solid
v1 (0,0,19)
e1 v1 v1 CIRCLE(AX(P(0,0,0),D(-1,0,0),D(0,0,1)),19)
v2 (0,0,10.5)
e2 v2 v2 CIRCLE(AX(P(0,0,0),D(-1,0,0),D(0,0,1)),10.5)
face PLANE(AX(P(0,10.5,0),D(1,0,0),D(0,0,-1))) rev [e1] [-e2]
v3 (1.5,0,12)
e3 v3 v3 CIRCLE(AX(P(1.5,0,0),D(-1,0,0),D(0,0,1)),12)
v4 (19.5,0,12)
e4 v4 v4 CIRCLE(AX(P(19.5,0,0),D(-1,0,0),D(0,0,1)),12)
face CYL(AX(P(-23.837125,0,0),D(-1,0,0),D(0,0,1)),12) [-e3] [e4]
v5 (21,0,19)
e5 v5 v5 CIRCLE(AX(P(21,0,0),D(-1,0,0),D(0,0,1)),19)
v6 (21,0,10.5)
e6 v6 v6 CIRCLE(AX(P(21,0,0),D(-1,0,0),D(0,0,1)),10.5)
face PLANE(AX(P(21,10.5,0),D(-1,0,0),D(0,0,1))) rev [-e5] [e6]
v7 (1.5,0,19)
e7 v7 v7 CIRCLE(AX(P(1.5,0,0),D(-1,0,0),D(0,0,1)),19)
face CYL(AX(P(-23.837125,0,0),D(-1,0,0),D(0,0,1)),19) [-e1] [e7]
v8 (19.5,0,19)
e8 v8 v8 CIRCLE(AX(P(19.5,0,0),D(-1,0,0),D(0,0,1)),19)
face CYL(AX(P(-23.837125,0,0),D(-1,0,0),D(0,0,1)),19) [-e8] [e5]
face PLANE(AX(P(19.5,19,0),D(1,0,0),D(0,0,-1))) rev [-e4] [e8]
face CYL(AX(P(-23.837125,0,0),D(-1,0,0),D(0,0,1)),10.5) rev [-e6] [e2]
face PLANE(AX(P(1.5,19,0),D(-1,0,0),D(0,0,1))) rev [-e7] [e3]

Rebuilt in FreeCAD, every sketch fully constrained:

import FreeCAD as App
import Part
import Sketcher
Q = App.Units.Quantity

doc = App.newDocument("Part")
body = doc.addObject("PartDesign::Body", "Body")

sketch1 = doc.addObject("Sketcher::SketchObject", "Sketch")
body.addObject(sketch1)
sketch1.AttachmentSupport = (doc.XY_Plane, [""])
sketch1.MapMode = "FlatFace"
sketch1.addGeometry(Part.LineSegment(App.Vector(21, 19, 0), App.Vector(19.5, 19, 0)), False)
sketch1.addGeometry(Part.LineSegment(App.Vector(19.5, 19, 0), App.Vector(19.5, 12, 0)), False)
sketch1.addGeometry(Part.LineSegment(App.Vector(19.5, 12, 0), App.Vector(1.5, 12, 0)), False)
sketch1.addGeometry(Part.LineSegment(App.Vector(1.5, 12, 0), App.Vector(1.5, 19, 0)), False)
sketch1.addGeometry(Part.LineSegment(App.Vector(1.5, 19, 0), App.Vector(0, 19, 0)), False)
sketch1.addGeometry(Part.LineSegment(App.Vector(0, 19, 0), App.Vector(0, 10.5, 0)), False)
sketch1.addGeometry(Part.LineSegment(App.Vector(0, 10.5, 0), App.Vector(21, 10.5, 0)), False)
sketch1.addGeometry(Part.LineSegment(App.Vector(21, 10.5, 0), App.Vector(21, 19, 0)), False)
sketch1.addConstraint(Sketcher.Constraint("Coincident", 0, 2, 1, 1))
sketch1.addConstraint(Sketcher.Constraint("Coincident", 1, 2, 2, 1))
sketch1.addConstraint(Sketcher.Constraint("Coincident", 2, 2, 3, 1))
sketch1.addConstraint(Sketcher.Constraint("Coincident", 3, 2, 4, 1))
sketch1.addConstraint(Sketcher.Constraint("Coincident", 4, 2, 5, 1))
sketch1.addConstraint(Sketcher.Constraint("Coincident", 5, 2, 6, 1))
sketch1.addConstraint(Sketcher.Constraint("Coincident", 6, 2, 7, 1))
sketch1.addConstraint(Sketcher.Constraint("Coincident", 7, 2, 0, 1))
sketch1.addConstraint(Sketcher.Constraint("Horizontal", 0))
sketch1.addConstraint(Sketcher.Constraint("Vertical", 1))
sketch1.addConstraint(Sketcher.Constraint("Horizontal", 2))
sketch1.addConstraint(Sketcher.Constraint("Vertical", 3))
sketch1.addConstraint(Sketcher.Constraint("Horizontal", 4))
sketch1.addConstraint(Sketcher.Constraint("Vertical", 5))
sketch1.addConstraint(Sketcher.Constraint("Horizontal", 6))
sketch1.addConstraint(Sketcher.Constraint("Vertical", 7))
sketch1.addConstraint(Sketcher.Constraint("PointOnObject", 4, 2, -2))
sketch1.addConstraint(Sketcher.Constraint("Horizontal", 0, 2, 3, 2))
sketch1.addConstraint(Sketcher.Constraint("Equal", 0, 4))
sketch1.addConstraint(Sketcher.Constraint("DistanceX", 2, 2, 2, 1, Q("18 mm")))
sketch1.addConstraint(Sketcher.Constraint("DistanceX", 6, 1, 6, 2, Q("21 mm")))
sketch1.addConstraint(Sketcher.Constraint("DistanceY", 1, 2, 1, 1, Q("7 mm")))
sketch1.addConstraint(Sketcher.Constraint("DistanceY", 5, 2, 5, 1, Q("8.5 mm")))
sketch1.addConstraint(Sketcher.Constraint("DistanceY", -1, 1, 0, 2, Q("19 mm")))
revolution = doc.addObject("PartDesign::Revolution", "Revolution")
body.addObject(revolution)
revolution.Profile = sketch1
revolution.ReferenceAxis = (sketch1, ["H_Axis"])
revolution.Angle = 360

doc.recompute()
